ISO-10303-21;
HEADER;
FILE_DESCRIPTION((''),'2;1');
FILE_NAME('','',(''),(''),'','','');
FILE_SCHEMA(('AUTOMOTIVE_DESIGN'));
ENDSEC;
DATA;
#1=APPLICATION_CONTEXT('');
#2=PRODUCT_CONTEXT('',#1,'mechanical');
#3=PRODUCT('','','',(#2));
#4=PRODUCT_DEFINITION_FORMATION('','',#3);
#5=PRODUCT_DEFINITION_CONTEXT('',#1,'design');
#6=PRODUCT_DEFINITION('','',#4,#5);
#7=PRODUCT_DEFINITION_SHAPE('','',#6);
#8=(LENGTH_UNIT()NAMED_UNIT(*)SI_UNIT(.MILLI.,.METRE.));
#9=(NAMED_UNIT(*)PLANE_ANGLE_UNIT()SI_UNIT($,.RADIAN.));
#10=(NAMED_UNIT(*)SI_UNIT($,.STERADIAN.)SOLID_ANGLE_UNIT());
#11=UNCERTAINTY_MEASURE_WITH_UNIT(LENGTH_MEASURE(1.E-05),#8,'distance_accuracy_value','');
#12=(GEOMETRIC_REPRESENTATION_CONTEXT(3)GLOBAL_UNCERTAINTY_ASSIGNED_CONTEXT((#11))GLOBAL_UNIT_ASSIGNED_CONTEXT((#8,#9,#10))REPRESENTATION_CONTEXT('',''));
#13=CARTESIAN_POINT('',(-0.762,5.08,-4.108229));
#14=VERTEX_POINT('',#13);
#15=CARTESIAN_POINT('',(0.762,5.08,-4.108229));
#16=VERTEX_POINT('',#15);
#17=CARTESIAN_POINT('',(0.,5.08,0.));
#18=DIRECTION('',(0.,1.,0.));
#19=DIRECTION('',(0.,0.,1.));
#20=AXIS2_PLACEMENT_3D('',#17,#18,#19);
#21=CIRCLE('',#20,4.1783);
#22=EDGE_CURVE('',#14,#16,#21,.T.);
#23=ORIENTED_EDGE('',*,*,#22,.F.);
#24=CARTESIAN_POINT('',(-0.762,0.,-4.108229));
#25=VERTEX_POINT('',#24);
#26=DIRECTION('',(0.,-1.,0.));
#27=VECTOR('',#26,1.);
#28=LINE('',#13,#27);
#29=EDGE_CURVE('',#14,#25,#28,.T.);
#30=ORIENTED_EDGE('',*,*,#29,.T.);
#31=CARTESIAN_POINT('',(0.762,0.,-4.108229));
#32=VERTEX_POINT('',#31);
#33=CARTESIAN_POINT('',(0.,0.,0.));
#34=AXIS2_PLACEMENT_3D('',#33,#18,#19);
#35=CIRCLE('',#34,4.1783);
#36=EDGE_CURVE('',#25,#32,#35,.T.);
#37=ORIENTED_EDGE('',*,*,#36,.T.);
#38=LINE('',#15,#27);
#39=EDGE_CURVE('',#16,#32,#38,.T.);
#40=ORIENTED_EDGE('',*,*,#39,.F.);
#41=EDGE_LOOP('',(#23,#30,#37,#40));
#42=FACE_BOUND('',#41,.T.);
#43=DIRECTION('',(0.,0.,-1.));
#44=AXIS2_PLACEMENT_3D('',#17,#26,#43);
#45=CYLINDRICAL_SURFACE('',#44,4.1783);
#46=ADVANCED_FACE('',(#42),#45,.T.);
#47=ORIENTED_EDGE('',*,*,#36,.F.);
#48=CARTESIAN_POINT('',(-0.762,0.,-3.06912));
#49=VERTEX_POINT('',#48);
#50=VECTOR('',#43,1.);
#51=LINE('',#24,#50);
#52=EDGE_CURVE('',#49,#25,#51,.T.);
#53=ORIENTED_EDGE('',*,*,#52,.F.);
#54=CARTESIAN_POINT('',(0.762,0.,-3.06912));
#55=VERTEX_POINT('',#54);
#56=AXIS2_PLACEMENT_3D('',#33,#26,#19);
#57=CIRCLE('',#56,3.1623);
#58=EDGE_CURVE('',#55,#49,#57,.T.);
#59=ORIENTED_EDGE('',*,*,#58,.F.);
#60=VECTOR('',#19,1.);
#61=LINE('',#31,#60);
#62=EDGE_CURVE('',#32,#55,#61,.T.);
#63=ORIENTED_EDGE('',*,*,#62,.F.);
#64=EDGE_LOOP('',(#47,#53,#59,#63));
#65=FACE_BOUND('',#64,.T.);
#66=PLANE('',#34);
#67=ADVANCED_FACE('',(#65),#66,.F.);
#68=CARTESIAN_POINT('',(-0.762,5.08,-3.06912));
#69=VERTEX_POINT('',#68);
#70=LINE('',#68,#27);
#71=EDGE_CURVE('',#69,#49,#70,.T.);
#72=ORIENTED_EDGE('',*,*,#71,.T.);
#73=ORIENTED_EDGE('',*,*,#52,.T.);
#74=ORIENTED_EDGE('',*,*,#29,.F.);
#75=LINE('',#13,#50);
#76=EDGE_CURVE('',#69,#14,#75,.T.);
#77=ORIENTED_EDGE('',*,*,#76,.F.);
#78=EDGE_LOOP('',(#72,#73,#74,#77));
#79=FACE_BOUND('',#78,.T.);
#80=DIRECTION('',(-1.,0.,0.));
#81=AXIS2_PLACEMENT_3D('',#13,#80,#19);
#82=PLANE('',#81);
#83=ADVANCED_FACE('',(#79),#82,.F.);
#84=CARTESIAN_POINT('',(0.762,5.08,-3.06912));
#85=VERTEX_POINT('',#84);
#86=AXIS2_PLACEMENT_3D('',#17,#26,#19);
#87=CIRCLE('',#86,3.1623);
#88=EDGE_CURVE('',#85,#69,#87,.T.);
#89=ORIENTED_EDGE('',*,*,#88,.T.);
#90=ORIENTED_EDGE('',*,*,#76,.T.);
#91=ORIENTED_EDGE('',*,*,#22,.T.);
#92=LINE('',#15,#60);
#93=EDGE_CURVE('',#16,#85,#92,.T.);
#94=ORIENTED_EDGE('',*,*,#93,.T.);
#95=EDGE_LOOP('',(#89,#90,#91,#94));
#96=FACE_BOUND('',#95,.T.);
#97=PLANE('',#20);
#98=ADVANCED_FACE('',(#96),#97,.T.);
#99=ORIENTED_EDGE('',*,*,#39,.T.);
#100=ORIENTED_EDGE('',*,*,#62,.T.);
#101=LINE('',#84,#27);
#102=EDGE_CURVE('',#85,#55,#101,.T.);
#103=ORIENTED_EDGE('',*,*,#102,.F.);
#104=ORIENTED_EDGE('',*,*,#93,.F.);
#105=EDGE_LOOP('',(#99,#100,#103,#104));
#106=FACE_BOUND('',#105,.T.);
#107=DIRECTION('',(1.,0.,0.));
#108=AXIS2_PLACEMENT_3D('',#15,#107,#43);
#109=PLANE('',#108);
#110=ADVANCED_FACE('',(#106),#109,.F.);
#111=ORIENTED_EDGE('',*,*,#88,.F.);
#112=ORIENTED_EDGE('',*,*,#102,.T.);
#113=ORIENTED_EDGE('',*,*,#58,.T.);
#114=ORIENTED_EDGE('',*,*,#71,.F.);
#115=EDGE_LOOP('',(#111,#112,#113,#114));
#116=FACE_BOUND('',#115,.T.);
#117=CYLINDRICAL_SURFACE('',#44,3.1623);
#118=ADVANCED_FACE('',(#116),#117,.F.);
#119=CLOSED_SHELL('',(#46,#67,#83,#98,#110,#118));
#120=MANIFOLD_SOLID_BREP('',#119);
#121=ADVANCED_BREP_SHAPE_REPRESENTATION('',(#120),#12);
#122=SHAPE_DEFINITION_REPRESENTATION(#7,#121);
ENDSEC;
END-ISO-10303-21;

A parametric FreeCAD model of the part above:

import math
import FreeCAD as App
import Part
import Sketcher

V = App.Vector
Q = App.Units.Quantity

doc = App.newDocument("Part")
body = doc.addObject("PartDesign::Body", "Body")

# Sketch on XZ plane
sketch1 = doc.addObject("Sketcher::SketchObject", "Sketch")
body.addObject(sketch1)
sketch1.AttachmentSupport = (doc.XZ_Plane, [""])
sketch1.MapMode = "FlatFace"
sketch1.addGeometry([
    Part.LineSegment(V(-0.8, -3.1, 0), V(-0.8, -4.1, 0)),
    Part.ArcOfCircle(Part.Circle(V(0, 0, 0), V(0, 0, 1), 4.2), math.radians(-79), math.radians(259)),
    Part.LineSegment(V(0.8, -4.1, 0), V(0.8, -3.1, 0)),
    Part.ArcOfCircle(Part.Circle(V(0, 0, 0), V(0, 0, 1), 3.2), math.radians(-76), math.radians(256)),
], False)
sketch1.addConstraint([
    Sketcher.Constraint("Coincident", 0, 2, 1, 2),
    Sketcher.Constraint("Coincident", 1, 1, 2, 1),
    Sketcher.Constraint("Coincident", 2, 2, 3, 1),
    Sketcher.Constraint("Coincident", 3, 2, 0, 1),
    Sketcher.Constraint("Vertical", 0),
    Sketcher.Constraint("Vertical", 2),
    Sketcher.Constraint("Coincident", 1, 3, -1, 1),
    Sketcher.Constraint("Coincident", 3, 3, -1, 1),
    Sketcher.Constraint("Horizontal", 0, 2, 1, 1),
    Sketcher.Constraint("Radius", 1, Q("0.1645 in")),
    Sketcher.Constraint("Radius", 3, Q("0.1245 in")),
    Sketcher.Constraint("DistanceX", 0, 2, -1, 1, Q("0.03 in")),
])
pad1 = doc.addObject("PartDesign::Pad", "Pad")
body.addObject(pad1)
pad1.Profile = sketch1
pad1.Length = Q("0.2 in")
pad1.Reversed = True

doc.recompute()
